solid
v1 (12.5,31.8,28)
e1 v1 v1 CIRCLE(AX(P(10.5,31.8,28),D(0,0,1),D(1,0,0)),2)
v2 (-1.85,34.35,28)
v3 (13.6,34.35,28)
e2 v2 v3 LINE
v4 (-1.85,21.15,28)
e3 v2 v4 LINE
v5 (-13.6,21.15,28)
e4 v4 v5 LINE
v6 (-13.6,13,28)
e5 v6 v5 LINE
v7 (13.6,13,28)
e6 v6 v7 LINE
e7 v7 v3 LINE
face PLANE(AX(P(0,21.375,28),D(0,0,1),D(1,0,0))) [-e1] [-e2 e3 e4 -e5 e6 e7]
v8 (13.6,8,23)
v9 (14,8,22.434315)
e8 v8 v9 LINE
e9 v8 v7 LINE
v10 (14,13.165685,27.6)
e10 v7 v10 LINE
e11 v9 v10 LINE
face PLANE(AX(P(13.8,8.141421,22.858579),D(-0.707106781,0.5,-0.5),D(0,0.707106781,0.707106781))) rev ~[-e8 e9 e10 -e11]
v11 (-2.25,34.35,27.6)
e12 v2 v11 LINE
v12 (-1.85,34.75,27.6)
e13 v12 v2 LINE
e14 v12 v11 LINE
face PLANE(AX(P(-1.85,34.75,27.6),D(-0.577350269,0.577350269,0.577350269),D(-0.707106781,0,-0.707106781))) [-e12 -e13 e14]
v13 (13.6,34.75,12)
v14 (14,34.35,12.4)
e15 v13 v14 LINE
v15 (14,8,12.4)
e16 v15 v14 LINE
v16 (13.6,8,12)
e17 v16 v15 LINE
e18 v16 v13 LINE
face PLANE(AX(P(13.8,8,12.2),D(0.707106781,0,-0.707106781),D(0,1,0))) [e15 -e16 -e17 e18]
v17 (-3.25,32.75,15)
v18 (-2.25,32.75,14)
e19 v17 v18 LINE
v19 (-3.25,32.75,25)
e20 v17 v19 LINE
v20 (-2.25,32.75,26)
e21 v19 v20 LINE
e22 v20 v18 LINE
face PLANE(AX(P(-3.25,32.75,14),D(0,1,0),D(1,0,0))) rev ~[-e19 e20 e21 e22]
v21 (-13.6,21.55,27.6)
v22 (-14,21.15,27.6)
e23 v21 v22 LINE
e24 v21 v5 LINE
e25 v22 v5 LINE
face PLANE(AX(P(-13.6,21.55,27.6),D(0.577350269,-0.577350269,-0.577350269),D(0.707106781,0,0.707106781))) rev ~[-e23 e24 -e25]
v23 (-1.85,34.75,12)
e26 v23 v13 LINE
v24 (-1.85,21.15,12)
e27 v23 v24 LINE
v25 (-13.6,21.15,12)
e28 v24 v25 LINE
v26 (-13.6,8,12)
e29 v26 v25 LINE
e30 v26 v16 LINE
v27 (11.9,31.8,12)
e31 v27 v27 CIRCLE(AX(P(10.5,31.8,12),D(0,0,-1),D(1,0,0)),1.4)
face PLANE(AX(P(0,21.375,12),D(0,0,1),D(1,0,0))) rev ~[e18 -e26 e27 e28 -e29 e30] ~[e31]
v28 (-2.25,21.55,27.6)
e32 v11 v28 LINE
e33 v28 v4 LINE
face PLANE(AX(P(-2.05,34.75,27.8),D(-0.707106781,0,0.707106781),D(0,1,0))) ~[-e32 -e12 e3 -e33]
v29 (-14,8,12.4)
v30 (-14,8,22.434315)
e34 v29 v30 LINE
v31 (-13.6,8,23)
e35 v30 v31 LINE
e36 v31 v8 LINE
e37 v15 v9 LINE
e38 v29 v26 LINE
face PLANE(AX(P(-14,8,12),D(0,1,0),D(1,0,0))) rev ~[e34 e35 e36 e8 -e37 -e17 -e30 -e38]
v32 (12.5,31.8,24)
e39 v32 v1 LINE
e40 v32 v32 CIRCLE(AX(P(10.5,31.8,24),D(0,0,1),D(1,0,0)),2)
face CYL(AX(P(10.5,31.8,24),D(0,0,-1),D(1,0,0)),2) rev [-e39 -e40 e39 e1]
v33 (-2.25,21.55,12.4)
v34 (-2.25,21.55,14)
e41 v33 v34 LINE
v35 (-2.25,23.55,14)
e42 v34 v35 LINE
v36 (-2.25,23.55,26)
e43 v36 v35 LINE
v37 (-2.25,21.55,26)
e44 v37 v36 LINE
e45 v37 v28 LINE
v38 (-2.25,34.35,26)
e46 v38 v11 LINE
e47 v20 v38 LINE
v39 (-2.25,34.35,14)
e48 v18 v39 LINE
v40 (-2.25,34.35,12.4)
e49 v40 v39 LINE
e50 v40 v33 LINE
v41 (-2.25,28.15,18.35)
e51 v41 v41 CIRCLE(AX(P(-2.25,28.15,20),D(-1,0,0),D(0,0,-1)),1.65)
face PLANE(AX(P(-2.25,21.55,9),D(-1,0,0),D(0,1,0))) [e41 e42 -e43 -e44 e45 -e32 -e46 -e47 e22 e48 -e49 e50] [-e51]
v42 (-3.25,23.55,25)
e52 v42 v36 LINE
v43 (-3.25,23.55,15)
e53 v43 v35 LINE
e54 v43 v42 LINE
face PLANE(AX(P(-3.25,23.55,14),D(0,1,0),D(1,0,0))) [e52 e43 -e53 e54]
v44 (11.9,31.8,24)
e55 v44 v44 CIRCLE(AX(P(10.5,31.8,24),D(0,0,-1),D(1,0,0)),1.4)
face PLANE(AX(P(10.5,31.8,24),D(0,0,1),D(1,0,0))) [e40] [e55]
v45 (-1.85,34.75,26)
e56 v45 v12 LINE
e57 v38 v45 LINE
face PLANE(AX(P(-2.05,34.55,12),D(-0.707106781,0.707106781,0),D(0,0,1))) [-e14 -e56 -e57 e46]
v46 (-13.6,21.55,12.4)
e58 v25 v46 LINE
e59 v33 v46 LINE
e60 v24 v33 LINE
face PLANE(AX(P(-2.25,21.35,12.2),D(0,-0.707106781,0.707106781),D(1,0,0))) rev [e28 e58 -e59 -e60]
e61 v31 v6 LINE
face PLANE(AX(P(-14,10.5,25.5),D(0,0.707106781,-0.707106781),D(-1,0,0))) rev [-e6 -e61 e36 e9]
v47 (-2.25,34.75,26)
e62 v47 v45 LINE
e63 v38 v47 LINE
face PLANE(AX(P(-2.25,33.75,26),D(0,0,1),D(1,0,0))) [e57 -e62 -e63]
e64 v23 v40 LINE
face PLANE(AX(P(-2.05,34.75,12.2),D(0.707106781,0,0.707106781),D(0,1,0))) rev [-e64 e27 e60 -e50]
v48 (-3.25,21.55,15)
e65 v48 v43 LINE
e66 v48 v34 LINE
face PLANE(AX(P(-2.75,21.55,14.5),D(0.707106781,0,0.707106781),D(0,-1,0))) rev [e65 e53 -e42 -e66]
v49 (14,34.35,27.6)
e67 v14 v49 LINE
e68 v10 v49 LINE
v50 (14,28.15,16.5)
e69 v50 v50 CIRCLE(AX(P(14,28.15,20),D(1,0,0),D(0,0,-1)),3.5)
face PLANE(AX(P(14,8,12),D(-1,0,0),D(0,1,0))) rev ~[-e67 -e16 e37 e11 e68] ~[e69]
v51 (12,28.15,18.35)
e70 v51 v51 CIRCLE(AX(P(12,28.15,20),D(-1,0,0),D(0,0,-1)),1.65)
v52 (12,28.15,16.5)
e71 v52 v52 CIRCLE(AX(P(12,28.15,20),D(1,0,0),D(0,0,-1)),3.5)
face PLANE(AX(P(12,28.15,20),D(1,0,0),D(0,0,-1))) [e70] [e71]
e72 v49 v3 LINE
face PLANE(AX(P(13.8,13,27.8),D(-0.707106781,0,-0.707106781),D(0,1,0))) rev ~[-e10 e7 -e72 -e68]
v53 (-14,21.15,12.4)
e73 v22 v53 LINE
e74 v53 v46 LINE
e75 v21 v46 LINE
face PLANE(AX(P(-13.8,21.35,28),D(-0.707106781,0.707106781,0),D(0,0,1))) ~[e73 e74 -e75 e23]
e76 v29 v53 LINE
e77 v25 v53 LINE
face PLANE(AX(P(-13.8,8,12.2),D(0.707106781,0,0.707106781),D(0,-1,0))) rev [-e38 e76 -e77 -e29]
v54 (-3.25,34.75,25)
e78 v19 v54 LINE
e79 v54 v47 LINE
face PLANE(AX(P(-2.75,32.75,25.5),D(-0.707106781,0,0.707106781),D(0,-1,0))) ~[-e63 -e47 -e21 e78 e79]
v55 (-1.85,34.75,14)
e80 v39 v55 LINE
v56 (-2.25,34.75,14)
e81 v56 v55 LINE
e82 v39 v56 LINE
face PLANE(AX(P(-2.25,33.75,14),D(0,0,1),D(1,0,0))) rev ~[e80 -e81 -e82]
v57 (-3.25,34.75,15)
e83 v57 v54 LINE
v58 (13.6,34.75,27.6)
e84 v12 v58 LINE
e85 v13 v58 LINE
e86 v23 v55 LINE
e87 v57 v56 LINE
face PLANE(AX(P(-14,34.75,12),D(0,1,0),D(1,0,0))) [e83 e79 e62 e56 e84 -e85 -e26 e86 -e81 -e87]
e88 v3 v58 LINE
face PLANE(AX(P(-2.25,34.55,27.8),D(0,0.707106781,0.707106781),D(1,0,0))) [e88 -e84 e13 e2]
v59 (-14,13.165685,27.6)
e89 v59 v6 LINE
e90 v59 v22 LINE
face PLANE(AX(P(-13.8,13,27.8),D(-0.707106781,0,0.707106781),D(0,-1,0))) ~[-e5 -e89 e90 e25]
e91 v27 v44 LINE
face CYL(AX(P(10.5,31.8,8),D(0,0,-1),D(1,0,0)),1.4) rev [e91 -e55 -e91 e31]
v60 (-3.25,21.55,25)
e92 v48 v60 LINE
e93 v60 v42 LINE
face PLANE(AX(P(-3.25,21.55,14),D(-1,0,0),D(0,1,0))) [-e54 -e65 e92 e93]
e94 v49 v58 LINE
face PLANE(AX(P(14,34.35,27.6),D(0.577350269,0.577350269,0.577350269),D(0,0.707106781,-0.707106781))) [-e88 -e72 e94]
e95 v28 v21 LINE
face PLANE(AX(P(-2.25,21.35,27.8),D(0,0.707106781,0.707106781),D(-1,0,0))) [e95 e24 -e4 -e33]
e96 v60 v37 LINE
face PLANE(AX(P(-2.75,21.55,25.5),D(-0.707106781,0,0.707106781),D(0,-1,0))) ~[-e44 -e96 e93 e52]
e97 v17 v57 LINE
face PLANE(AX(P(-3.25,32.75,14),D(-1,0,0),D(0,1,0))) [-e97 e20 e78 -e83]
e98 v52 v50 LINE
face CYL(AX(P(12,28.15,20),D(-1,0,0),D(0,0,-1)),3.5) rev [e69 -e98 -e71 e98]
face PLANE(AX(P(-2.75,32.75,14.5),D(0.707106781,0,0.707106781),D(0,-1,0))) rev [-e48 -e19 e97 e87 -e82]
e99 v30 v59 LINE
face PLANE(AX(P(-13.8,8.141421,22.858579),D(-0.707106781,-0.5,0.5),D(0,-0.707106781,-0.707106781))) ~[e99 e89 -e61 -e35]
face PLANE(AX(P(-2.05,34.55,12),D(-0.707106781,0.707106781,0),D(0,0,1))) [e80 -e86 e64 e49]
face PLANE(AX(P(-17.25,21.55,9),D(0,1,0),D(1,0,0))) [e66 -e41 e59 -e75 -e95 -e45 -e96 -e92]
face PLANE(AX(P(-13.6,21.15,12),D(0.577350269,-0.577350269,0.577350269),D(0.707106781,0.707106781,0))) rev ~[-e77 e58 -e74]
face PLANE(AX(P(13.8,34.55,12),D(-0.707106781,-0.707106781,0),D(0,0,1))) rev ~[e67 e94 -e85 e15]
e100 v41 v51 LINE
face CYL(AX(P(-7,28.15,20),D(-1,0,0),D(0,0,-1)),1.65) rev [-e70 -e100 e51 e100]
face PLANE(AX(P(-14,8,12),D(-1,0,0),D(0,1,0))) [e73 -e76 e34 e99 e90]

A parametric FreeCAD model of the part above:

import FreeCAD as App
import Part
import Sketcher


def edges_at(feature, points):
    """Names of the edges that pass closest to the given points."""
    edges = feature.Shape.Edges
    near = lambda p: min(range(len(edges)), key=lambda i: edges[i].distToShape(Part.Vertex(*p))[0])
    return sorted({f"Edge{near(p) + 1}" for p in points})


def add_polygon(sketch, points):
    """Adds a closed chain of lines whose ends are joined by coincident constraints."""
    first, n = sketch.GeometryCount, len(points)
    for a, b in zip(points, points[1:] + points[:1]):
        sketch.addGeometry(Part.LineSegment(App.Vector(*a, 0), App.Vector(*b, 0)), False)
    for i in range(n):
        sketch.addConstraint(Sketcher.Constraint("Coincident", first + i, 2, first + (i + 1) % n, 1))

doc = App.newDocument("Part")
body = doc.addObject("PartDesign::Body", "Body")

# Sketch on XY plane
sketch1 = doc.addObject("Sketcher::SketchObject", "Sketch")
body.addObject(sketch1)
sketch1.AttachmentSupport = (doc.XY_Plane, [""])
sketch1.MapMode = "FlatFace"
sketch1.AttachmentOffset = App.Placement(App.Vector(0, 0, 14), App.Rotation())
add_polygon(sketch1, [(-3.2, 23.6), (-3.2, 21.6), (-1.2, 21.6), (-1.2, 23.6)])  # lines 0-3
sketch1.addConstraint(Sketcher.Constraint("Vertical", 0))
sketch1.addConstraint(Sketcher.Constraint("Horizontal", 1))
sketch1.addConstraint(Sketcher.Constraint("Vertical", 2))
sketch1.addConstraint(Sketcher.Constraint("Horizontal", 3))
sketch1.addConstraint(Sketcher.Constraint("Equal", 3, 0))
sketch1.addConstraint(Sketcher.Constraint("DistanceX", 1, 1, 1, 2, 2.0))
sketch1.addConstraint(Sketcher.Constraint("DistanceX", 0, 2, -1, 1, 3.25))
sketch1.addConstraint(Sketcher.Constraint("DistanceY", -1, 1, 0, 2, 21.55))
pad1 = doc.addObject("PartDesign::Pad", "Pad")
body.addObject(pad1)
pad1.Profile = sketch1
pad1.Length = 12
doc.recompute()

chamfer = doc.addObject("PartDesign::Chamfer", "Chamfer")
body.addObject(chamfer)
chamfer.Base = (pad1, edges_at(pad1, [(-3.25, 22.55, 26), (-3.25, 22.55, 14)]))
chamfer.Size = 1
body2 = doc.addObject("PartDesign::Body", "Body001")
body2.AllowCompound = True

# Sketch on XY plane
sketch2 = doc.addObject("Sketcher::SketchObject", "Sketch001")
body2.addObject(sketch2)
sketch2.AttachmentSupport = (doc.getObject("XY_Plane001"), [""])
sketch2.MapMode = "FlatFace"
sketch2.AttachmentOffset = App.Placement(App.Vector(0, 0, 14), App.Rotation())
add_polygon(sketch2, [(-3.2, 34.8), (-3.2, 32.8), (-1.2, 32.8), (-1.2, 34.8)])  # lines 0-3
sketch2.addConstraint(Sketcher.Constraint("Vertical", 0))
sketch2.addConstraint(Sketcher.Constraint("Horizontal", 1))
sketch2.addConstraint(Sketcher.Constraint("Vertical", 2))
sketch2.addConstraint(Sketcher.Constraint("Horizontal", 3))
sketch2.addConstraint(Sketcher.Constraint("Equal", 3, 0))
sketch2.addConstraint(Sketcher.Constraint("DistanceX", 1, 1, 1, 2, 2.0))
sketch2.addConstraint(Sketcher.Constraint("DistanceX", 0, 2, -1, 1, 3.25))
sketch2.addConstraint(Sketcher.Constraint("DistanceY", -1, 1, 0, 2, 32.75))
pad2 = doc.addObject("PartDesign::Pad", "Pad001")
body2.addObject(pad2)
pad2.Profile = sketch2
pad2.Length = 12
doc.recompute()

chamfer2 = doc.addObject("PartDesign::Chamfer", "Chamfer001")
body2.addObject(chamfer2)
chamfer2.Base = (pad2, edges_at(pad2, [(-3.25, 33.75, 26), (-3.25, 33.75, 14)]))
chamfer2.Size = 1
doc.recompute()

boolean = doc.addObject("PartDesign::Boolean", "Boolean")
body2.addObject(boolean)
boolean.Type = "Fuse"
boolean.addObjects([body])
body3 = doc.addObject("PartDesign::Body", "Body002")

# Sketch on XY plane
sketch3 = doc.addObject("Sketcher::SketchObject", "Sketch002")
body3.addObject(sketch3)
sketch3.AttachmentSupport = (doc.getObject("XY_Plane002"), [""])
sketch3.MapMode = "FlatFace"
sketch3.AttachmentOffset = App.Placement(App.Vector(0, 0, 8), App.Rotation())
sketch3.addGeometry(Part.Circle(App.Vector(10.5, 31.8, 0), App.Vector(0, 0, 1), 1.4), False)
sketch3.addConstraint(Sketcher.Constraint("Diameter", 0, 2.8))
sketch3.addConstraint(Sketcher.Constraint("DistanceX", -1, 1, 0, 3, 10.5))
sketch3.addConstraint(Sketcher.Constraint("DistanceY", -1, 1, 0, 3, 31.8))
pad3 = doc.addObject("PartDesign::Pad", "Pad002")
body3.addObject(pad3)
pad3.Profile = sketch3
pad3.Length = 30
body4 = doc.addObject("PartDesign::Body", "Body003")

# Sketch on XY plane
sketch4 = doc.addObject("Sketcher::SketchObject", "Sketch003")
body4.addObject(sketch4)
sketch4.AttachmentSupport = (doc.getObject("XY_Plane003"), [""])
sketch4.MapMode = "FlatFace"
sketch4.AttachmentOffset = App.Placement(App.Vector(0, 0, 24), App.Rotation())
sketch4.addGeometry(Part.Circle(App.Vector(10.5, 31.8, 0), App.Vector(0, 0, 1), 2), False)
sketch4.addConstraint(Sketcher.Constraint("Diameter", 0, 4.0))
sketch4.addConstraint(Sketcher.Constraint("DistanceX", -1, 1, 0, 3, 10.5))
sketch4.addConstraint(Sketcher.Constraint("DistanceY", -1, 1, 0, 3, 31.8))
pad4 = doc.addObject("PartDesign::Pad", "Pad003")
body4.addObject(pad4)
pad4.Profile = sketch4
pad4.Length = 4
doc.recompute()

boolean2 = doc.addObject("PartDesign::Boolean", "Boolean001")
body4.addObject(boolean2)
boolean2.Type = "Fuse"
boolean2.addObjects([body3])
body5 = doc.addObject("PartDesign::Body", "Body004")

# Sketch on YZ plane
sketch5 = doc.addObject("Sketcher::SketchObject", "Sketch004")
body5.addObject(sketch5)
sketch5.AttachmentSupport = (doc.getObject("YZ_Plane004"), [""])
sketch5.MapMode = "FlatFace"
sketch5.AttachmentOffset = App.Placement(App.Vector(0, 0, 12), App.Rotation())
sketch5.addGeometry(Part.Circle(App.Vector(28.1, 20, 0), App.Vector(0, 0, 1), 3.5), False)
sketch5.addConstraint(Sketcher.Constraint("Diameter", 0, 7.0))
sketch5.addConstraint(Sketcher.Constraint("DistanceY", -1, 1, 0, 3, 20.0))
sketch5.addConstraint(Sketcher.Constraint("DistanceX", -1, 1, 0, 3, 28.15))
pad5 = doc.addObject("PartDesign::Pad", "Pad004")
body5.addObject(pad5)
pad5.Profile = sketch5
pad5.Length = 2
body6 = doc.addObject("PartDesign::Body", "Body005")

# Sketch on YZ plane
sketch6 = doc.addObject("Sketcher::SketchObject", "Sketch005")
body6.addObject(sketch6)
sketch6.AttachmentSupport = (doc.getObject("YZ_Plane005"), [""])
sketch6.MapMode = "FlatFace"
sketch6.AttachmentOffset = App.Placement(App.Vector(0, 0, -7), App.Rotation())
sketch6.addGeometry(Part.Circle(App.Vector(28.1, 20, 0), App.Vector(0, 0, 1), 1.6), False)
sketch6.addConstraint(Sketcher.Constraint("Diameter", 0, 3.3))
sketch6.addConstraint(Sketcher.Constraint("DistanceY", -1, 1, 0, 3, 20.0))
sketch6.addConstraint(Sketcher.Constraint("DistanceX", -1, 1, 0, 3, 28.15))
pad6 = doc.addObject("PartDesign::Pad", "Pad005")
body6.addObject(pad6)
pad6.Profile = sketch6
pad6.Length = 25
body7 = doc.addObject("PartDesign::Body", "Body006")

# Sketch on XY plane
sketch7 = doc.addObject("Sketcher::SketchObject", "Sketch006")
body7.addObject(sketch7)
sketch7.AttachmentSupport = (doc.getObject("XY_Plane006"), [""])
sketch7.MapMode = "FlatFace"
sketch7.AttachmentOffset = App.Placement(App.Vector(0, 0, 9), App.Rotation())
add_polygon(sketch7, [(-17, 35), (-17, 22), (-2, 22), (-2, 35)])  # lines 0-3
sketch7.addConstraint(Sketcher.Constraint("Vertical", 0))
sketch7.addConstraint(Sketcher.Constraint("Horizontal", 1))
sketch7.addConstraint(Sketcher.Constraint("Vertical", 2))
sketch7.addConstraint(Sketcher.Constraint("Horizontal", 3))
sketch7.addConstraint(Sketcher.Constraint("DistanceX", 1, 1, 1, 2, 15.0))
sketch7.addConstraint(Sketcher.Constraint("DistanceY", 0, 2, 0, 1, 13.5))
sketch7.addConstraint(Sketcher.Constraint("DistanceX", 0, 2, -1, 1, 17.25))
sketch7.addConstraint(Sketcher.Constraint("DistanceY", -1, 1, 0, 2, 21.55))
pad7 = doc.addObject("PartDesign::Pad", "Pad006")
body7.addObject(pad7)
pad7.Profile = sketch7
pad7.Length = 23
body8 = doc.addObject("PartDesign::Body", "Body007")

# Sketch on XY plane
sketch8 = doc.addObject("Sketcher::SketchObject", "Sketch007")
body8.addObject(sketch8)
sketch8.AttachmentSupport = (doc.getObject("XY_Plane007"), [""])
sketch8.MapMode = "FlatFace"
sketch8.AttachmentOffset = App.Placement(App.Vector(0, 0, 12), App.Rotation())
add_polygon(sketch8, [(-14, 35), (-14, 8), (14, 8), (14, 35)])  # lines 0-3
sketch8.addConstraint(Sketcher.Constraint("Vertical", 0))
sketch8.addConstraint(Sketcher.Constraint("Horizontal", 1))
sketch8.addConstraint(Sketcher.Constraint("Vertical", 2))
sketch8.addConstraint(Sketcher.Constraint("Horizontal", 3))
sketch8.addConstraint(Sketcher.Constraint("DistanceX", 1, 1, 1, 2, 28.0))
sketch8.addConstraint(Sketcher.Constraint("DistanceX", 0, 2, -1, 1, 14.0))
sketch8.addConstraint(Sketcher.Constraint("DistanceY", -1, 1, 0, 2, 8.0))
sketch8.addConstraint(Sketcher.Constraint("DistanceY", 0, 2, 0, 1, 26.75))
pad8 = doc.addObject("PartDesign::Pad", "Pad007")
body8.addObject(pad8)
pad8.Profile = sketch8
pad8.Length = 16
doc.recompute()

chamfer3 = doc.addObject("PartDesign::Chamfer", "Chamfer002")
body8.addObject(chamfer3)
chamfer3.Base = (pad8, edges_at(pad8, [(0, 8, 28)]))
chamfer3.Size = 5
doc.recompute()

boolean3 = doc.addObject("PartDesign::Boolean", "Boolean002")
body8.addObject(boolean3)
boolean3.Type = "Cut"
boolean3.addObjects([body7])
doc.recompute()

chamfer4 = doc.addObject("PartDesign::Chamfer", "Chamfer003")
body8.addObject(chamfer4)
chamfer4.Base = (boolean3, edges_at(boolean3, [
    (-14, 10.5, 25.5),
    (-14, 17.275, 28),
    (-14, 21.55, 20),
    (-14, 14.775, 12),
    (14, 10.5, 25.5),
    (-8.125, 21.55, 28),
    (-2.25, 28.15, 28),
    (5.875, 34.75, 28),
    (14, 23.875, 28),
    (-8.125, 21.55, 12),
    (-2.25, 28.15, 12),
    (14, 21.375, 12),
    (14, 34.75, 20),
    (-2.25, 34.75, 20),
]))
chamfer4.Size = 0.4
doc.recompute()

boolean4 = doc.addObject("PartDesign::Boolean", "Boolean003")
body8.addObject(boolean4)
boolean4.Type = "Cut"
boolean4.addObjects([body6])
doc.recompute()

boolean5 = doc.addObject("PartDesign::Boolean", "Boolean004")
body8.addObject(boolean5)
boolean5.Type = "Cut"
boolean5.addObjects([body5])
doc.recompute()

boolean6 = doc.addObject("PartDesign::Boolean", "Boolean005")
body8.addObject(boolean6)
boolean6.Type = "Cut"
boolean6.addObjects([body4])
doc.recompute()

boolean7 = doc.addObject("PartDesign::Boolean", "Boolean006")
body8.addObject(boolean7)
boolean7.Type = "Fuse"
boolean7.addObjects([body2])

doc.recompute()
